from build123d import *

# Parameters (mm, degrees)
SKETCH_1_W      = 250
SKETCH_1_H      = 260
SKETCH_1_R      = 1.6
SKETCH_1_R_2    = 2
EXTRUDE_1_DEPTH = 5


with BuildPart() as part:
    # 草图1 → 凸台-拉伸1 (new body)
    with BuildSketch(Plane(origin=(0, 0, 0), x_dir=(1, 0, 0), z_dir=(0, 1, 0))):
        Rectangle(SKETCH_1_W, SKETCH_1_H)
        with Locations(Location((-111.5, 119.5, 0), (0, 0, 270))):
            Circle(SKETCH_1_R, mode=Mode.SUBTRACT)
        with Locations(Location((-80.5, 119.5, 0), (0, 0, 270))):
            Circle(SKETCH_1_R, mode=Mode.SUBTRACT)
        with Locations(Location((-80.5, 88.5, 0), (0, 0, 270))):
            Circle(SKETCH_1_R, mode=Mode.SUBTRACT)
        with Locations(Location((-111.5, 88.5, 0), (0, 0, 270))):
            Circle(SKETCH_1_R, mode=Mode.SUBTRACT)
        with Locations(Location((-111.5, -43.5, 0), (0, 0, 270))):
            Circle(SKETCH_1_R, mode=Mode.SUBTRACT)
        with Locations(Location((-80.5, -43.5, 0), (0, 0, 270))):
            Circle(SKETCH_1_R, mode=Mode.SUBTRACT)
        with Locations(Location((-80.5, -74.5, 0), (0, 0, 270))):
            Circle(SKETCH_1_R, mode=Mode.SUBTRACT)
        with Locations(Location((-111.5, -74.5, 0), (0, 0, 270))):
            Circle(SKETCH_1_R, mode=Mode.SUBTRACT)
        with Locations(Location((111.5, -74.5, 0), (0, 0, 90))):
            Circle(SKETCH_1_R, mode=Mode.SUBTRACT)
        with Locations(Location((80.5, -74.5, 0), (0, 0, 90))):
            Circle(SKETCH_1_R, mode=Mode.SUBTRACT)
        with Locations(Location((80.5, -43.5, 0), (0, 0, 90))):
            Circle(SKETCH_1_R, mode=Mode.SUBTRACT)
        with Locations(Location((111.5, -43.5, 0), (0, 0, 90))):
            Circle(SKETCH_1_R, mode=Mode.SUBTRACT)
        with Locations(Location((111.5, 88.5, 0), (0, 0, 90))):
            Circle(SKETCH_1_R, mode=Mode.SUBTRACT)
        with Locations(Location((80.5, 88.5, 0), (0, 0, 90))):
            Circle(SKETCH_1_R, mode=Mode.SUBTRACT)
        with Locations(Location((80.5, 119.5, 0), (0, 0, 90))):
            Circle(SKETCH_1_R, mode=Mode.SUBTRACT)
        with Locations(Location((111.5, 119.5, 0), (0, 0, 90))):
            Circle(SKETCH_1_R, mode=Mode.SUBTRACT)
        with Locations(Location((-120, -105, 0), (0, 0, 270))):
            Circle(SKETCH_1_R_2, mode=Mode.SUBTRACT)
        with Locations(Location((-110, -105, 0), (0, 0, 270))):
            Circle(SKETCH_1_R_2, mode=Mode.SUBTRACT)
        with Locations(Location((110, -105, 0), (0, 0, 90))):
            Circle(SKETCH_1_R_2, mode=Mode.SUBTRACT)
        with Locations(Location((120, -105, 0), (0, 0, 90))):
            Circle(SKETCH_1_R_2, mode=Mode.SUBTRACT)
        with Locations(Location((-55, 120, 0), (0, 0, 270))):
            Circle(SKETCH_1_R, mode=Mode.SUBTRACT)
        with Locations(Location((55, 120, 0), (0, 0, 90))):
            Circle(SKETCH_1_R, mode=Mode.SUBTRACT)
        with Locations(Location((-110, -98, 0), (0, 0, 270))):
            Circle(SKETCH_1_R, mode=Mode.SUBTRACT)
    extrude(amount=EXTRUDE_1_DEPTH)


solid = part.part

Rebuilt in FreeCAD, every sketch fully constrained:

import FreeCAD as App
import Part
import Sketcher


def add_polygon(sketch, points):
    """Adds a closed chain of lines whose ends are joined by coincident constraints."""
    first, n = sketch.GeometryCount, len(points)
    for a, b in zip(points, points[1:] + points[:1]):
        sketch.addGeometry(Part.LineSegment(App.Vector(*a, 0), App.Vector(*b, 0)), False)
    for i in range(n):
        sketch.addConstraint(Sketcher.Constraint("Coincident", first + i, 2, first + (i + 1) % n, 1))

doc = App.newDocument("Part")
body = doc.addObject("PartDesign::Body", "Body")

# Sketch on XZ plane
sketch1 = doc.addObject("Sketcher::SketchObject", "Sketch")
body.addObject(sketch1)
sketch1.AttachmentSupport = (doc.XZ_Plane, [""])
sketch1.MapMode = "FlatFace"
add_polygon(sketch1, [(-125, -130), (-125, 130), (125, 130), (125, -130)])  # lines 0-3
sketch1.addGeometry(Part.Circle(App.Vector(-120, 105, 0), App.Vector(0, 0, 1), 2), False)  # 4
sketch1.addGeometry(Part.Circle(App.Vector(-110, 105, 0), App.Vector(0, 0, 1), 2), False)  # 5
sketch1.addGeometry(Part.Circle(App.Vector(-110, 98, 0), App.Vector(0, 0, 1), 1.6), False)  # 6
sketch1.addGeometry(Part.Circle(App.Vector(-111.5, 74.5, 0), App.Vector(0, 0, 1), 1.6), False)  # 7
sketch1.addGeometry(Part.Circle(App.Vector(-80.5, 74.5, 0), App.Vector(0, 0, 1), 1.6), False)  # 8
sketch1.addGeometry(Part.Circle(App.Vector(-111.5, 43.5, 0), App.Vector(0, 0, 1), 1.6), False)  # 9
sketch1.addGeometry(Part.Circle(App.Vector(-80.5, 43.5, 0), App.Vector(0, 0, 1), 1.6), False)  # 10
sketch1.addGeometry(Part.Circle(App.Vector(110, 105, 0), App.Vector(0, 0, 1), 2), False)  # 11
sketch1.addGeometry(Part.Circle(App.Vector(120, 105, 0), App.Vector(0, 0, 1), 2), False)  # 12
sketch1.addGeometry(Part.Circle(App.Vector(80.5, 74.5, 0), App.Vector(0, 0, 1), 1.6), False)  # 13
sketch1.addGeometry(Part.Circle(App.Vector(111.5, 74.5, 0), App.Vector(0, 0, 1), 1.6), False)  # 14
sketch1.addGeometry(Part.Circle(App.Vector(80.5, 43.5, 0), App.Vector(0, 0, 1), 1.6), False)  # 15
sketch1.addGeometry(Part.Circle(App.Vector(111.5, 43.5, 0), App.Vector(0, 0, 1), 1.6), False)  # 16
sketch1.addGeometry(Part.Circle(App.Vector(-111.5, -88.5, 0), App.Vector(0, 0, 1), 1.6), False)  # 17
sketch1.addGeometry(Part.Circle(App.Vector(-80.5, -88.5, 0), App.Vector(0, 0, 1), 1.6), False)  # 18
sketch1.addGeometry(Part.Circle(App.Vector(-111.5, -119.5, 0), App.Vector(0, 0, 1), 1.6), False)  # 19
sketch1.addGeometry(Part.Circle(App.Vector(-80.5, -119.5, 0), App.Vector(0, 0, 1), 1.6), False)  # 20
sketch1.addGeometry(Part.Circle(App.Vector(-55, -120, 0), App.Vector(0, 0, 1), 1.6), False)  # 21
sketch1.addGeometry(Part.Circle(App.Vector(55, -120, 0), App.Vector(0, 0, 1), 1.6), False)  # 22
sketch1.addGeometry(Part.Circle(App.Vector(80.5, -88.5, 0), App.Vector(0, 0, 1), 1.6), False)  # 23
sketch1.addGeometry(Part.Circle(App.Vector(111.5, -88.5, 0), App.Vector(0, 0, 1), 1.6), False)  # 24
sketch1.addGeometry(Part.Circle(App.Vector(80.5, -119.5, 0), App.Vector(0, 0, 1), 1.6), False)  # 25
sketch1.addGeometry(Part.Circle(App.Vector(111.5, -119.5, 0), App.Vector(0, 0, 1), 1.6), False)  # 26
sketch1.addConstraint([
    Sketcher.Constraint("Vertical", 0),
    Sketcher.Constraint("Horizontal", 1),
    Sketcher.Constraint("Vertical", 2),
    Sketcher.Constraint("Horizontal", 3),
    Sketcher.Constraint("Equal", 4, 5),
    Sketcher.Constraint("Equal", 6, 7),
    Sketcher.Constraint("Equal", 7, 8),
    Sketcher.Constraint("Equal", 8, 9),
    Sketcher.Constraint("Equal", 9, 10),
    Sketcher.Constraint("Equal", 5, 11),
    Sketcher.Constraint("Equal", 11, 12),
    Sketcher.Constraint("Equal", 10, 13),
    Sketcher.Constraint("Equal", 13, 14),
    Sketcher.Constraint("Equal", 14, 15),
    Sketcher.Constraint("Equal", 15, 16),
    Sketcher.Constraint("Equal", 16, 17),
    Sketcher.Constraint("Equal", 17, 18),
    Sketcher.Constraint("Equal", 18, 19),
    Sketcher.Constraint("Equal", 19, 20),
    Sketcher.Constraint("Equal", 20, 21),
    Sketcher.Constraint("Equal", 21, 22),
    Sketcher.Constraint("Equal", 22, 23),
    Sketcher.Constraint("Equal", 23, 24),
    Sketcher.Constraint("Equal", 24, 25),
    Sketcher.Constraint("Equal", 25, 26),
    Sketcher.Constraint("Symmetric", 0, 2, 2, 2, -1, 1),
    Sketcher.Constraint("Symmetric", 5, 3, 11, 3, -2),
    Sketcher.Constraint("Symmetric", 4, 3, 12, 3, -2),
    Sketcher.Constraint("Symmetric", 8, 3, 13, 3, -2),
    Sketcher.Constraint("Symmetric", 7, 3, 14, 3, -2),
    Sketcher.Constraint("Symmetric", 10, 3, 15, 3, -2),
    Sketcher.Constraint("Symmetric", 9, 3, 16, 3, -2),
    Sketcher.Constraint("Symmetric", 21, 3, 22, 3, -2),
    Sketcher.Constraint("Symmetric", 18, 3, 23, 3, -2),
    Sketcher.Constraint("Symmetric", 17, 3, 24, 3, -2),
    Sketcher.Constraint("Symmetric", 20, 3, 25, 3, -2),
    Sketcher.Constraint("Symmetric", 19, 3, 26, 3, -2),
    Sketcher.Constraint("Horizontal", 4, 3, 5, 3),
    Sketcher.Constraint("Horizontal", 7, 3, 8, 3),
    Sketcher.Constraint("Horizontal", 9, 3, 10, 3),
    Sketcher.Constraint("Horizontal", 17, 3, 18, 3),
    Sketcher.Constraint("Horizontal", 19, 3, 20, 3),
    Sketcher.Constraint("Vertical", 5, 3, 6, 3),
    Sketcher.Constraint("Vertical", 7, 3, 9, 3),
    Sketcher.Constraint("Vertical", 8, 3, 10, 3),
    Sketcher.Constraint("Vertical", 9, 3, 17, 3),
    Sketcher.Constraint("Vertical", 10, 3, 18, 3),
    Sketcher.Constraint("Vertical", 17, 3, 19, 3),
    Sketcher.Constraint("Vertical", 18, 3, 20, 3),
    Sketcher.Constraint("Diameter", 4, 4.0),
    Sketcher.Constraint("Diameter", 6, 3.2),
    Sketcher.Constraint("DistanceX", 1, 1, 1, 2, 250.0),
    Sketcher.Constraint("DistanceY", 0, 1, 0, 2, 260.0),
    Sketcher.Constraint("DistanceX", 4, 3, -1, 1, 120.0),
    Sketcher.Constraint("DistanceY", -1, 1, 4, 3, 105.0),
    Sketcher.Constraint("DistanceX", 5, 3, -1, 1, 110.0),
    Sketcher.Constraint("DistanceY", -1, 1, 6, 3, 98.0),
    Sketcher.Constraint("DistanceX", 21, 3, -1, 1, 55.0),
    Sketcher.Constraint("DistanceY", 21, 3, -1, 1, 120.0),
    Sketcher.Constraint("DistanceX", 7, 3, 8, 3, 31.0),
    Sketcher.Constraint("DistanceY", 9, 3, 7, 3, 31.0),
    Sketcher.Constraint("DistanceX", 8, 3, 13, 3, 161.0),
    Sketcher.Constraint("DistanceY", 17, 3, 9, 3, 132.0),
    Sketcher.Constraint("DistanceY", 19, 3, 17, 3, 31.0),
    Sketcher.Constraint("DistanceY", -1, 1, 7, 3, 74.5),
])
pad1 = doc.addObject("PartDesign::Pad", "Pad")
body.addObject(pad1)
pad1.Profile = sketch1
pad1.Length = 5
pad1.Reversed = True

doc.recompute()
